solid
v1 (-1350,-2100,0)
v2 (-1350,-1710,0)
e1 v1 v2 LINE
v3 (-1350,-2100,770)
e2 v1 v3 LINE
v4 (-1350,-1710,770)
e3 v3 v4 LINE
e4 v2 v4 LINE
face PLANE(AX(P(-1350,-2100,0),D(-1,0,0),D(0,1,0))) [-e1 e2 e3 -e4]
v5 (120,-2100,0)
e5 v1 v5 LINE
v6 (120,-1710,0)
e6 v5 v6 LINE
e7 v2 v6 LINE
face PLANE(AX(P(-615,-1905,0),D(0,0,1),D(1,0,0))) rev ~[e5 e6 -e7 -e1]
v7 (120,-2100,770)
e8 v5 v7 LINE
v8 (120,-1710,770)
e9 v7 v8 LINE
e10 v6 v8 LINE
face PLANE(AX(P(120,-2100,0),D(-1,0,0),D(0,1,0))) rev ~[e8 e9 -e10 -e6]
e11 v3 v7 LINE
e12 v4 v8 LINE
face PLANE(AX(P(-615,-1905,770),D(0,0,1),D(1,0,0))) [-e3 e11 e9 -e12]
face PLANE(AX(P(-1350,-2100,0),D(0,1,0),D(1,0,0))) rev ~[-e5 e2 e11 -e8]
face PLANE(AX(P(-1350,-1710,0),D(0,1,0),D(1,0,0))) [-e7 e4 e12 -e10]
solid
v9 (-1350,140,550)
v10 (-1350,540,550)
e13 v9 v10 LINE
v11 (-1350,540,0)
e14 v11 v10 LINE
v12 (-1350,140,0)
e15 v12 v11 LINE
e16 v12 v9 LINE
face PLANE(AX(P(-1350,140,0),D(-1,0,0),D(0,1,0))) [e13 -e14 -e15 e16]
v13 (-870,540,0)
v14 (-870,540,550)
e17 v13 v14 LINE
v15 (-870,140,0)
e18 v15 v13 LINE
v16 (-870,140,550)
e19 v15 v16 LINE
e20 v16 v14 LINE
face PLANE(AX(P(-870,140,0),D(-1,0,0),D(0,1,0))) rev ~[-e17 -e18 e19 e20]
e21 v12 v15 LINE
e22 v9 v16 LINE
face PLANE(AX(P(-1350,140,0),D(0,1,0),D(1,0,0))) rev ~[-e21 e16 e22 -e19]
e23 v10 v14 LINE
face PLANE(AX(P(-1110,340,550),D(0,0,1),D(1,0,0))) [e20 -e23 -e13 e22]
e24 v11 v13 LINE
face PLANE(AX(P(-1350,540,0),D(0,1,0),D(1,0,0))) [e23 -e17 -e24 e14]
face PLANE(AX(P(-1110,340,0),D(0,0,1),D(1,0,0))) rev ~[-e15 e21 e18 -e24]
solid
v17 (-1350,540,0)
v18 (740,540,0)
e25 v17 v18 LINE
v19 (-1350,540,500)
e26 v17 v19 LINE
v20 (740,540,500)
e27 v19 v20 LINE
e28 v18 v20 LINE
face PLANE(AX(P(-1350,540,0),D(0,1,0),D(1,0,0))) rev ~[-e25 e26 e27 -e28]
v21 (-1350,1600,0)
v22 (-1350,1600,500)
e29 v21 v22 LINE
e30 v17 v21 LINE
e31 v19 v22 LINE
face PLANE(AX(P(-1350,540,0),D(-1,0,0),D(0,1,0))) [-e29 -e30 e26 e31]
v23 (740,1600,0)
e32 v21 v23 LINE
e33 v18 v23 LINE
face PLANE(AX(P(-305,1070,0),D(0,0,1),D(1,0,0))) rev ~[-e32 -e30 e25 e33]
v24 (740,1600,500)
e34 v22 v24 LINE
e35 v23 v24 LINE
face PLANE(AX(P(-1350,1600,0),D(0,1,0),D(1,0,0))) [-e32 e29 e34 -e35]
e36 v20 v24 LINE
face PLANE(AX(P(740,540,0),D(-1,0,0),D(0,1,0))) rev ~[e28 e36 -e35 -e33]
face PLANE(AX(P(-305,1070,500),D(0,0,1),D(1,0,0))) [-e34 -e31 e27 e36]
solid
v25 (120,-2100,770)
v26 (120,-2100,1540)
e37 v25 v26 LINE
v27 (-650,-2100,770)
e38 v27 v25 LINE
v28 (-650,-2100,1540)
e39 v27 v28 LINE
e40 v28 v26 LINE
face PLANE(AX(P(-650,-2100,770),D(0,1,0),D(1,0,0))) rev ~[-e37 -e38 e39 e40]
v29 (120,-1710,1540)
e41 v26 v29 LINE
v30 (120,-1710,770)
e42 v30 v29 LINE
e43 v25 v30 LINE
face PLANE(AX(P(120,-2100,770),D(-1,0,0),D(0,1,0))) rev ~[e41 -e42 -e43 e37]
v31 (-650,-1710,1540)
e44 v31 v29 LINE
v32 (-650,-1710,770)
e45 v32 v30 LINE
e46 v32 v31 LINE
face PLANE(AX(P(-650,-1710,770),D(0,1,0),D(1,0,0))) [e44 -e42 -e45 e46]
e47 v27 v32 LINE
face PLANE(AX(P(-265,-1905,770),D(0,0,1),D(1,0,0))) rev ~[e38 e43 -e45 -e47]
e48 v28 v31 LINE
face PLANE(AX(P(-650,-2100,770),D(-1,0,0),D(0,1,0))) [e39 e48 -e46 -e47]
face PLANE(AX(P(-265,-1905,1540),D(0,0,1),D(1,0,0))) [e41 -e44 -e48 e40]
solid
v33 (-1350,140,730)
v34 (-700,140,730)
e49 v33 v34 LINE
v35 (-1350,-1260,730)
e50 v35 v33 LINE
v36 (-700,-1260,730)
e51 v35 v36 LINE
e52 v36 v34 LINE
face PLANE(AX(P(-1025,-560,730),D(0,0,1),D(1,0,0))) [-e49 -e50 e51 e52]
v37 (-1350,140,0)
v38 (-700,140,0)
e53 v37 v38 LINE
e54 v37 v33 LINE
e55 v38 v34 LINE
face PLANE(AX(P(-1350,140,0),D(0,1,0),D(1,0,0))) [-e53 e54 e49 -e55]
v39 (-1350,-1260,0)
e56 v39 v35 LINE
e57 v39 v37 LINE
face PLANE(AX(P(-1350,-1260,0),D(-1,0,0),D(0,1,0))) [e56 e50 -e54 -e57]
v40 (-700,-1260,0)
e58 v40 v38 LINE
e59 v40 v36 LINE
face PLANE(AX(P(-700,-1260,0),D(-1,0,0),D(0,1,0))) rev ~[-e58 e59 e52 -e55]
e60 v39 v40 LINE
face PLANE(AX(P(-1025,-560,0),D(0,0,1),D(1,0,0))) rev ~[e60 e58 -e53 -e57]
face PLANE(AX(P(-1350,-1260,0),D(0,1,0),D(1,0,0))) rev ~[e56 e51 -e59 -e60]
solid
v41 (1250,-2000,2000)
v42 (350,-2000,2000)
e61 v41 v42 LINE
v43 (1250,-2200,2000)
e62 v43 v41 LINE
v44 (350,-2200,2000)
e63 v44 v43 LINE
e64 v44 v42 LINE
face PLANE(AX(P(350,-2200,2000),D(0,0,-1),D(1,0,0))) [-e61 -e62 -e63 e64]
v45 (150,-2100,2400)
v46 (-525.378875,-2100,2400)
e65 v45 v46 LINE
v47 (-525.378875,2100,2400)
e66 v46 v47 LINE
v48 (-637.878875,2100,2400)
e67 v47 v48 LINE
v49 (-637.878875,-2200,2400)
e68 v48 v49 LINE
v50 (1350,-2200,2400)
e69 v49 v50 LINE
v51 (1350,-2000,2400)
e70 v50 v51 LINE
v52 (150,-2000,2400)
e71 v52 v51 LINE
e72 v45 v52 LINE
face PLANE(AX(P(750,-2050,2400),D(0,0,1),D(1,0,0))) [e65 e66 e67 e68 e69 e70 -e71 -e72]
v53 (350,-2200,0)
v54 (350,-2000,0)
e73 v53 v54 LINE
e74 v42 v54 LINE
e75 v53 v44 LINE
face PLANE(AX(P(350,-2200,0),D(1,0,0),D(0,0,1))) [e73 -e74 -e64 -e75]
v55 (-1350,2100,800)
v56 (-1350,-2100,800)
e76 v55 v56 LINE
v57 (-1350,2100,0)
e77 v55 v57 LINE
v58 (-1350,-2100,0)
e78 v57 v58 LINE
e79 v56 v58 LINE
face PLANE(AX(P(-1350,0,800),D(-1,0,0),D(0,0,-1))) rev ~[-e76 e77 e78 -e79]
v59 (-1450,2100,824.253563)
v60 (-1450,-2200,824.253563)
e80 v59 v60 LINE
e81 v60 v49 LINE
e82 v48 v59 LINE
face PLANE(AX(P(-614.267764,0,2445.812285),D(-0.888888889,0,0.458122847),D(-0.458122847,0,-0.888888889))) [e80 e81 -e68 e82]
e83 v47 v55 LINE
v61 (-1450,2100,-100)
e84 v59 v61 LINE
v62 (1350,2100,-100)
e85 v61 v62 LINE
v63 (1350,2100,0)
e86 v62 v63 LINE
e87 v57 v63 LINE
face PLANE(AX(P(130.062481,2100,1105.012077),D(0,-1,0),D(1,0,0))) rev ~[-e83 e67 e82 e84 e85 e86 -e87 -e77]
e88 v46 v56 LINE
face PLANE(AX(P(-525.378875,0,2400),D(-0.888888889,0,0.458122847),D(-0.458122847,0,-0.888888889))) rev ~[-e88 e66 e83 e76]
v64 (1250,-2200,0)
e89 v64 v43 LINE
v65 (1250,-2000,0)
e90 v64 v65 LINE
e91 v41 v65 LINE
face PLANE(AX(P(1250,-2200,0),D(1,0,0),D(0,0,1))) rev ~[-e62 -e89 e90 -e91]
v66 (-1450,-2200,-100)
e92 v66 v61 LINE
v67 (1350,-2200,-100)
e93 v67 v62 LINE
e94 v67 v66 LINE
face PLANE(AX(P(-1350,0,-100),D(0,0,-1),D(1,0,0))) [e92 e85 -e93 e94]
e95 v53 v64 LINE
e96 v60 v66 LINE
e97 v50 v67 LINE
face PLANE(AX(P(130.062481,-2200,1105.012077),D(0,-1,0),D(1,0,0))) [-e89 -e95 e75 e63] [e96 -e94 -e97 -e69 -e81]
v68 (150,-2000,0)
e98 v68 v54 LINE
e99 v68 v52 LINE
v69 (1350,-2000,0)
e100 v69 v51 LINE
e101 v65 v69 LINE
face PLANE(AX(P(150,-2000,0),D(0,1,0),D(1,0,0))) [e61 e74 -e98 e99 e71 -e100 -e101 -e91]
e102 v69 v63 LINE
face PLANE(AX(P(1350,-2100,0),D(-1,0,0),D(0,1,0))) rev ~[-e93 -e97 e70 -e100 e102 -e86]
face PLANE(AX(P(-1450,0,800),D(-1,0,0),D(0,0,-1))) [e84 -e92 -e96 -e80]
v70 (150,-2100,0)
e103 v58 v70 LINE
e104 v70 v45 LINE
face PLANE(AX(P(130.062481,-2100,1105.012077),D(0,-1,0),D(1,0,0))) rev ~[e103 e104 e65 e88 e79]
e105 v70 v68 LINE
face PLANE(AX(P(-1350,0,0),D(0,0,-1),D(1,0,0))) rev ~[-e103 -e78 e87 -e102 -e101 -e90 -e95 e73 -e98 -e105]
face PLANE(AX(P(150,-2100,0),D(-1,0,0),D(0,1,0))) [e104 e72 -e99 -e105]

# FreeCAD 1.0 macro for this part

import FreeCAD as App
import Part
import Sketcher

V = App.Vector


def faces_at(feature, points):
    """Names of the faces that lie closest to the given points."""
    faces = feature.Shape.Faces
    near = lambda p: min(range(len(faces)), key=lambda i: faces[i].distToShape(Part.Vertex(*p))[0])
    return sorted({f"Face{near(p) + 1}" for p in points})

doc = App.newDocument("Part")
body = doc.addObject("PartDesign::Body", "Body")

# Sketch on XZ plane
sketch1 = body.newObject("Sketcher::SketchObject", "Sketch")
sketch1.AttachmentSupport = (doc.getObject("XZ_Plane"), [""])
sketch1.MapMode = "FlatFace"
sketch1.addGeometry(Part.LineSegment(V(-525, 2400, 0), V(-1350, 800, 0)), False)
sketch1.addGeometry(Part.LineSegment(V(-1350, 800, 0), V(-1350, 0, 0)), False)
sketch1.addGeometry(Part.LineSegment(V(-1350, 0, 0), V(1350, 0, 0)), False)
sketch1.addGeometry(Part.LineSegment(V(1350, 0, 0), V(1350, 2400, 0)), False)
sketch1.addGeometry(Part.LineSegment(V(1350, 2400, 0), V(-525, 2400, 0)), False)
sketch1.addConstraint(Sketcher.Constraint("Coincident", 0, 2, 1, 1))
sketch1.addConstraint(Sketcher.Constraint("Coincident", 1, 2, 2, 1))
sketch1.addConstraint(Sketcher.Constraint("Coincident", 2, 2, 3, 1))
sketch1.addConstraint(Sketcher.Constraint("Coincident", 3, 2, 4, 1))
sketch1.addConstraint(Sketcher.Constraint("Coincident", 4, 2, 0, 1))
sketch1.addConstraint(Sketcher.Constraint("Vertical", 1))
sketch1.addConstraint(Sketcher.Constraint("Horizontal", 2))
sketch1.addConstraint(Sketcher.Constraint("Vertical", 3))
sketch1.addConstraint(Sketcher.Constraint("Horizontal", 4))
sketch1.addConstraint(Sketcher.Constraint("Symmetric", 1, 2, 2, 2, -1, 1))
sketch1.addConstraint(Sketcher.Constraint("DistanceX", 2, 1, 2, 2, 2700.0))
sketch1.addConstraint(Sketcher.Constraint("DistanceY", 1, 2, 1, 1, 800.0))
sketch1.addConstraint(Sketcher.Constraint("DistanceY", 3, 1, 3, 2, 2400.0))
sketch1.addConstraint(Sketcher.Constraint("Distance", 0, 1800.0))
pad1 = body.newObject("PartDesign::Pad", "Pad")
pad1.Profile = sketch1
pad1.Length = 4200
pad1.Midplane = True
doc.recompute()

thickness = body.newObject("PartDesign::Thickness", "Thickness")
thickness.Base = (pad1, faces_at(pad1, [(0, 2100, 1200), (412.311, 0, 2400), (1350, 0, 1200)]))
thickness.Value = 100
thickness.Reversed = False
thickness.Join = "Intersection"

# Sketch on XY plane
sketch2 = body.newObject("Sketcher::SketchObject", "Sketch001")
sketch2.AttachmentSupport = (doc.getObject("XY_Plane"), [""])
sketch2.MapMode = "FlatFace"
sketch2.addGeometry(Part.LineSegment(V(150, -2000, 0), V(150, -2100, 0)), False)
sketch2.addGeometry(Part.LineSegment(V(150, -2100, 0), V(1350, -2100, 0)), False)
sketch2.addGeometry(Part.LineSegment(V(1350, -2100, 0), V(1350, -2000, 0)), False)
sketch2.addGeometry(Part.LineSegment(V(1350, -2000, 0), V(150, -2000, 0)), False)
sketch2.addConstraint(Sketcher.Constraint("Coincident", 0, 2, 1, 1))
sketch2.addConstraint(Sketcher.Constraint("Coincident", 1, 2, 2, 1))
sketch2.addConstraint(Sketcher.Constraint("Coincident", 2, 2, 3, 1))
sketch2.addConstraint(Sketcher.Constraint("Coincident", 3, 2, 0, 1))
sketch2.addConstraint(Sketcher.Constraint("Vertical", 0))
sketch2.addConstraint(Sketcher.Constraint("Horizontal", 1))
sketch2.addConstraint(Sketcher.Constraint("Vertical", 2))
sketch2.addConstraint(Sketcher.Constraint("Horizontal", 3))
sketch2.addConstraint(Sketcher.Constraint("DistanceX", 1, 1, 1, 2, 1200.0))
sketch2.addConstraint(Sketcher.Constraint("DistanceY", 0, 2, 0, 1, 100.0))
sketch2.addConstraint(Sketcher.Constraint("DistanceX", -1, 1, 0, 2, 150.0))
sketch2.addConstraint(Sketcher.Constraint("DistanceY", 0, 2, -1, 1, 2100.0))
pad2 = body.newObject("PartDesign::Pad", "Pad001")
pad2.Profile = sketch2
pad2.Length = 2400

# Sketch on XZ plane
sketch3 = body.newObject("Sketcher::SketchObject", "Sketch002")
sketch3.AttachmentSupport = (doc.getObject("XZ_Plane"), [""])
sketch3.MapMode = "FlatFace"
sketch3.AttachmentOffset = App.Placement(V(0, 0, 2200), App.Rotation())
sketch3.addGeometry(Part.LineSegment(V(350, 2000, 0), V(350, 0, 0)), False)
sketch3.addGeometry(Part.LineSegment(V(350, 0, 0), V(1250, 0, 0)), False)
sketch3.addGeometry(Part.LineSegment(V(1250, 0, 0), V(1250, 2000, 0)), False)
sketch3.addGeometry(Part.LineSegment(V(1250, 2000, 0), V(350, 2000, 0)), False)
sketch3.addConstraint(Sketcher.Constraint("Coincident", 0, 2, 1, 1))
sketch3.addConstraint(Sketcher.Constraint("Coincident", 1, 2, 2, 1))
sketch3.addConstraint(Sketcher.Constraint("Coincident", 2, 2, 3, 1))
sketch3.addConstraint(Sketcher.Constraint("Coincident", 3, 2, 0, 1))
sketch3.addConstraint(Sketcher.Constraint("Vertical", 0))
sketch3.addConstraint(Sketcher.Constraint("Horizontal", 1))
sketch3.addConstraint(Sketcher.Constraint("Vertical", 2))
sketch3.addConstraint(Sketcher.Constraint("Horizontal", 3))
sketch3.addConstraint(Sketcher.Constraint("PointOnObject", 0, 2, -1))
sketch3.addConstraint(Sketcher.Constraint("DistanceX", 1, 1, 1, 2, 900.0))
sketch3.addConstraint(Sketcher.Constraint("DistanceY", 0, 2, 0, 1, 2000.0))
sketch3.addConstraint(Sketcher.Constraint("DistanceX", -1, 1, 0, 2, 350.0))
pocket1 = body.newObject("PartDesign::Pocket", "Pocket")
pocket1.Profile = sketch3
pocket1.Length = 1000
body2 = doc.addObject("PartDesign::Body", "Body001")

# Sketch on XY plane
sketch4 = body2.newObject("Sketcher::SketchObject", "Sketch003")
sketch4.AttachmentSupport = (doc.getObject("XY_Plane001"), [""])
sketch4.MapMode = "FlatFace"
sketch4.addGeometry(Part.LineSegment(V(-1350, 1600, 0), V(-1350, 540, 0)), False)
sketch4.addGeometry(Part.LineSegment(V(-1350, 540, 0), V(740, 540, 0)), False)
sketch4.addGeometry(Part.LineSegment(V(740, 540, 0), V(740, 1600, 0)), False)
sketch4.addGeometry(Part.LineSegment(V(740, 1600, 0), V(-1350, 1600, 0)), False)
sketch4.addConstraint(Sketcher.Constraint("Coincident", 0, 2, 1, 1))
sketch4.addConstraint(Sketcher.Constraint("Coincident", 1, 2, 2, 1))
sketch4.addConstraint(Sketcher.Constraint("Coincident", 2, 2, 3, 1))
sketch4.addConstraint(Sketcher.Constraint("Coincident", 3, 2, 0, 1))
sketch4.addConstraint(Sketcher.Constraint("Vertical", 0))
sketch4.addConstraint(Sketcher.Constraint("Horizontal", 1))
sketch4.addConstraint(Sketcher.Constraint("Vertical", 2))
sketch4.addConstraint(Sketcher.Constraint("Horizontal", 3))
sketch4.addConstraint(Sketcher.Constraint("DistanceX", 1, 1, 1, 2, 2090.0))
sketch4.addConstraint(Sketcher.Constraint("DistanceY", 0, 2, 0, 1, 1060.0))
sketch4.addConstraint(Sketcher.Constraint("DistanceX", 0, 2, -1, 1, 1350.0))
sketch4.addConstraint(Sketcher.Constraint("DistanceY", -1, 1, 0, 2, 540.0))
pad3 = body2.newObject("PartDesign::Pad", "Pad002")
pad3.Profile = sketch4
pad3.Length = 500
body3 = doc.addObject("PartDesign::Body", "Body002")

# Sketch on XY plane
sketch5 = body3.newObject("Sketcher::SketchObject", "Sketch004")
sketch5.AttachmentSupport = (doc.getObject("XY_Plane002"), [""])
sketch5.MapMode = "FlatFace"
sketch5.addGeometry(Part.LineSegment(V(-1350, -1710, 0), V(-1350, -2100, 0)), False)
sketch5.addGeometry(Part.LineSegment(V(-1350, -2100, 0), V(120, -2100, 0)), False)
sketch5.addGeometry(Part.LineSegment(V(120, -2100, 0), V(120, -1710, 0)), False)
sketch5.addGeometry(Part.LineSegment(V(120, -1710, 0), V(-1350, -1710, 0)), False)
sketch5.addConstraint(Sketcher.Constraint("Coincident", 0, 2, 1, 1))
sketch5.addConstraint(Sketcher.Constraint("Coincident", 1, 2, 2, 1))
sketch5.addConstraint(Sketcher.Constraint("Coincident", 2, 2, 3, 1))
sketch5.addConstraint(Sketcher.Constraint("Coincident", 3, 2, 0, 1))
sketch5.addConstraint(Sketcher.Constraint("Vertical", 0))
sketch5.addConstraint(Sketcher.Constraint("Horizontal", 1))
sketch5.addConstraint(Sketcher.Constraint("Vertical", 2))
sketch5.addConstraint(Sketcher.Constraint("Horizontal", 3))
sketch5.addConstraint(Sketcher.Constraint("DistanceX", 1, 1, 1, 2, 1470.0))
sketch5.addConstraint(Sketcher.Constraint("DistanceY", 0, 2, 0, 1, 390.0))
sketch5.addConstraint(Sketcher.Constraint("DistanceX", 0, 2, -1, 1, 1350.0))
sketch5.addConstraint(Sketcher.Constraint("DistanceY", 0, 2, -1, 1, 2100.0))
pad4 = body3.newObject("PartDesign::Pad", "Pad003")
pad4.Profile = sketch5
pad4.Length = 770
body4 = doc.addObject("PartDesign::Body", "Body003")

# Sketch on XY plane
sketch6 = body4.newObject("Sketcher::SketchObject", "Sketch005")
sketch6.AttachmentSupport = (doc.getObject("XY_Plane003"), [""])
sketch6.MapMode = "FlatFace"
sketch6.AttachmentOffset = App.Placement(V(0, 0, 770), App.Rotation())
sketch6.addGeometry(Part.LineSegment(V(-650, -1710, 0), V(-650, -2100, 0)), False)
sketch6.addGeometry(Part.LineSegment(V(-650, -2100, 0), V(120, -2100, 0)), False)
sketch6.addGeometry(Part.LineSegment(V(120, -2100, 0), V(120, -1710, 0)), False)
sketch6.addGeometry(Part.LineSegment(V(120, -1710, 0), V(-650, -1710, 0)), False)
sketch6.addConstraint(Sketcher.Constraint("Coincident", 0, 2, 1, 1))
sketch6.addConstraint(Sketcher.Constraint("Coincident", 1, 2, 2, 1))
sketch6.addConstraint(Sketcher.Constraint("Coincident", 2, 2, 3, 1))
sketch6.addConstraint(Sketcher.Constraint("Coincident", 3, 2, 0, 1))
sketch6.addConstraint(Sketcher.Constraint("Vertical", 0))
sketch6.addConstraint(Sketcher.Constraint("Horizontal", 1))
sketch6.addConstraint(Sketcher.Constraint("Vertical", 2))
sketch6.addConstraint(Sketcher.Constraint("Horizontal", 3))
sketch6.addConstraint(Sketcher.Constraint("DistanceX", 1, 1, 1, 2, 770.0))
sketch6.addConstraint(Sketcher.Constraint("DistanceY", 0, 2, 0, 1, 390.0))
sketch6.addConstraint(Sketcher.Constraint("DistanceX", 0, 2, -1, 1, 650.0))
sketch6.addConstraint(Sketcher.Constraint("DistanceY", 0, 2, -1, 1, 2100.0))
pad5 = body4.newObject("PartDesign::Pad", "Pad004")
pad5.Profile = sketch6
pad5.Length = 770
body5 = doc.addObject("PartDesign::Body", "Body004")

# Sketch on XY plane
sketch7 = body5.newObject("Sketcher::SketchObject", "Sketch006")
sketch7.AttachmentSupport = (doc.getObject("XY_Plane004"), [""])
sketch7.MapMode = "FlatFace"
sketch7.addGeometry(Part.LineSegment(V(-1350, 540, 0), V(-1350, 140, 0)), False)
sketch7.addGeometry(Part.LineSegment(V(-1350, 140, 0), V(-870, 140, 0)), False)
sketch7.addGeometry(Part.LineSegment(V(-870, 140, 0), V(-870, 540, 0)), False)
sketch7.addGeometry(Part.LineSegment(V(-870, 540, 0), V(-1350, 540, 0)), False)
sketch7.addConstraint(Sketcher.Constraint("Coincident", 0, 2, 1, 1))
sketch7.addConstraint(Sketcher.Constraint("Coincident", 1, 2, 2, 1))
sketch7.addConstraint(Sketcher.Constraint("Coincident", 2, 2, 3, 1))
sketch7.addConstraint(Sketcher.Constraint("Coincident", 3, 2, 0, 1))
sketch7.addConstraint(Sketcher.Constraint("Vertical", 0))
sketch7.addConstraint(Sketcher.Constraint("Horizontal", 1))
sketch7.addConstraint(Sketcher.Constraint("Vertical", 2))
sketch7.addConstraint(Sketcher.Constraint("Horizontal", 3))
sketch7.addConstraint(Sketcher.Constraint("DistanceX", 1, 1, 1, 2, 480.0))
sketch7.addConstraint(Sketcher.Constraint("DistanceY", 0, 2, 0, 1, 400.0))
sketch7.addConstraint(Sketcher.Constraint("DistanceX", 0, 2, -1, 1, 1350.0))
sketch7.addConstraint(Sketcher.Constraint("DistanceY", -1, 1, 0, 2, 140.0))
pad6 = body5.newObject("PartDesign::Pad", "Pad005")
pad6.Profile = sketch7
pad6.Length = 550
body6 = doc.addObject("PartDesign::Body", "Body005")

# Sketch on XY plane
sketch8 = body6.newObject("Sketcher::SketchObject", "Sketch007")
sketch8.AttachmentSupport = (doc.getObject("XY_Plane005"), [""])
sketch8.MapMode = "FlatFace"
sketch8.addGeometry(Part.LineSegment(V(-1350, 140, 0), V(-1350, -1260, 0)), False)
sketch8.addGeometry(Part.LineSegment(V(-1350, -1260, 0), V(-700, -1260, 0)), False)
sketch8.addGeometry(Part.LineSegment(V(-700, -1260, 0), V(-700, 140, 0)), False)
sketch8.addGeometry(Part.LineSegment(V(-700, 140, 0), V(-1350, 140, 0)), False)
sketch8.addConstraint(Sketcher.Constraint("Coincident", 0, 2, 1, 1))
sketch8.addConstraint(Sketcher.Constraint("Coincident", 1, 2, 2, 1))
sketch8.addConstraint(Sketcher.Constraint("Coincident", 2, 2, 3, 1))
sketch8.addConstraint(Sketcher.Constraint("Coincident", 3, 2, 0, 1))
sketch8.addConstraint(Sketcher.Constraint("Vertical", 0))
sketch8.addConstraint(Sketcher.Constraint("Horizontal", 1))
sketch8.addConstraint(Sketcher.Constraint("Vertical", 2))
sketch8.addConstraint(Sketcher.Constraint("Horizontal", 3))
sketch8.addConstraint(Sketcher.Constraint("DistanceX", 1, 1, 1, 2, 650.0))
sketch8.addConstraint(Sketcher.Constraint("DistanceY", 0, 2, 0, 1, 1400.0))
sketch8.addConstraint(Sketcher.Constraint("DistanceX", 0, 2, -1, 1, 1350.0))
sketch8.addConstraint(Sketcher.Constraint("DistanceY", 0, 2, -1, 1, 1260.0))
pad7 = body6.newObject("PartDesign::Pad", "Pad006")
pad7.Profile = sketch8
pad7.Length = 730

doc.recompute()
